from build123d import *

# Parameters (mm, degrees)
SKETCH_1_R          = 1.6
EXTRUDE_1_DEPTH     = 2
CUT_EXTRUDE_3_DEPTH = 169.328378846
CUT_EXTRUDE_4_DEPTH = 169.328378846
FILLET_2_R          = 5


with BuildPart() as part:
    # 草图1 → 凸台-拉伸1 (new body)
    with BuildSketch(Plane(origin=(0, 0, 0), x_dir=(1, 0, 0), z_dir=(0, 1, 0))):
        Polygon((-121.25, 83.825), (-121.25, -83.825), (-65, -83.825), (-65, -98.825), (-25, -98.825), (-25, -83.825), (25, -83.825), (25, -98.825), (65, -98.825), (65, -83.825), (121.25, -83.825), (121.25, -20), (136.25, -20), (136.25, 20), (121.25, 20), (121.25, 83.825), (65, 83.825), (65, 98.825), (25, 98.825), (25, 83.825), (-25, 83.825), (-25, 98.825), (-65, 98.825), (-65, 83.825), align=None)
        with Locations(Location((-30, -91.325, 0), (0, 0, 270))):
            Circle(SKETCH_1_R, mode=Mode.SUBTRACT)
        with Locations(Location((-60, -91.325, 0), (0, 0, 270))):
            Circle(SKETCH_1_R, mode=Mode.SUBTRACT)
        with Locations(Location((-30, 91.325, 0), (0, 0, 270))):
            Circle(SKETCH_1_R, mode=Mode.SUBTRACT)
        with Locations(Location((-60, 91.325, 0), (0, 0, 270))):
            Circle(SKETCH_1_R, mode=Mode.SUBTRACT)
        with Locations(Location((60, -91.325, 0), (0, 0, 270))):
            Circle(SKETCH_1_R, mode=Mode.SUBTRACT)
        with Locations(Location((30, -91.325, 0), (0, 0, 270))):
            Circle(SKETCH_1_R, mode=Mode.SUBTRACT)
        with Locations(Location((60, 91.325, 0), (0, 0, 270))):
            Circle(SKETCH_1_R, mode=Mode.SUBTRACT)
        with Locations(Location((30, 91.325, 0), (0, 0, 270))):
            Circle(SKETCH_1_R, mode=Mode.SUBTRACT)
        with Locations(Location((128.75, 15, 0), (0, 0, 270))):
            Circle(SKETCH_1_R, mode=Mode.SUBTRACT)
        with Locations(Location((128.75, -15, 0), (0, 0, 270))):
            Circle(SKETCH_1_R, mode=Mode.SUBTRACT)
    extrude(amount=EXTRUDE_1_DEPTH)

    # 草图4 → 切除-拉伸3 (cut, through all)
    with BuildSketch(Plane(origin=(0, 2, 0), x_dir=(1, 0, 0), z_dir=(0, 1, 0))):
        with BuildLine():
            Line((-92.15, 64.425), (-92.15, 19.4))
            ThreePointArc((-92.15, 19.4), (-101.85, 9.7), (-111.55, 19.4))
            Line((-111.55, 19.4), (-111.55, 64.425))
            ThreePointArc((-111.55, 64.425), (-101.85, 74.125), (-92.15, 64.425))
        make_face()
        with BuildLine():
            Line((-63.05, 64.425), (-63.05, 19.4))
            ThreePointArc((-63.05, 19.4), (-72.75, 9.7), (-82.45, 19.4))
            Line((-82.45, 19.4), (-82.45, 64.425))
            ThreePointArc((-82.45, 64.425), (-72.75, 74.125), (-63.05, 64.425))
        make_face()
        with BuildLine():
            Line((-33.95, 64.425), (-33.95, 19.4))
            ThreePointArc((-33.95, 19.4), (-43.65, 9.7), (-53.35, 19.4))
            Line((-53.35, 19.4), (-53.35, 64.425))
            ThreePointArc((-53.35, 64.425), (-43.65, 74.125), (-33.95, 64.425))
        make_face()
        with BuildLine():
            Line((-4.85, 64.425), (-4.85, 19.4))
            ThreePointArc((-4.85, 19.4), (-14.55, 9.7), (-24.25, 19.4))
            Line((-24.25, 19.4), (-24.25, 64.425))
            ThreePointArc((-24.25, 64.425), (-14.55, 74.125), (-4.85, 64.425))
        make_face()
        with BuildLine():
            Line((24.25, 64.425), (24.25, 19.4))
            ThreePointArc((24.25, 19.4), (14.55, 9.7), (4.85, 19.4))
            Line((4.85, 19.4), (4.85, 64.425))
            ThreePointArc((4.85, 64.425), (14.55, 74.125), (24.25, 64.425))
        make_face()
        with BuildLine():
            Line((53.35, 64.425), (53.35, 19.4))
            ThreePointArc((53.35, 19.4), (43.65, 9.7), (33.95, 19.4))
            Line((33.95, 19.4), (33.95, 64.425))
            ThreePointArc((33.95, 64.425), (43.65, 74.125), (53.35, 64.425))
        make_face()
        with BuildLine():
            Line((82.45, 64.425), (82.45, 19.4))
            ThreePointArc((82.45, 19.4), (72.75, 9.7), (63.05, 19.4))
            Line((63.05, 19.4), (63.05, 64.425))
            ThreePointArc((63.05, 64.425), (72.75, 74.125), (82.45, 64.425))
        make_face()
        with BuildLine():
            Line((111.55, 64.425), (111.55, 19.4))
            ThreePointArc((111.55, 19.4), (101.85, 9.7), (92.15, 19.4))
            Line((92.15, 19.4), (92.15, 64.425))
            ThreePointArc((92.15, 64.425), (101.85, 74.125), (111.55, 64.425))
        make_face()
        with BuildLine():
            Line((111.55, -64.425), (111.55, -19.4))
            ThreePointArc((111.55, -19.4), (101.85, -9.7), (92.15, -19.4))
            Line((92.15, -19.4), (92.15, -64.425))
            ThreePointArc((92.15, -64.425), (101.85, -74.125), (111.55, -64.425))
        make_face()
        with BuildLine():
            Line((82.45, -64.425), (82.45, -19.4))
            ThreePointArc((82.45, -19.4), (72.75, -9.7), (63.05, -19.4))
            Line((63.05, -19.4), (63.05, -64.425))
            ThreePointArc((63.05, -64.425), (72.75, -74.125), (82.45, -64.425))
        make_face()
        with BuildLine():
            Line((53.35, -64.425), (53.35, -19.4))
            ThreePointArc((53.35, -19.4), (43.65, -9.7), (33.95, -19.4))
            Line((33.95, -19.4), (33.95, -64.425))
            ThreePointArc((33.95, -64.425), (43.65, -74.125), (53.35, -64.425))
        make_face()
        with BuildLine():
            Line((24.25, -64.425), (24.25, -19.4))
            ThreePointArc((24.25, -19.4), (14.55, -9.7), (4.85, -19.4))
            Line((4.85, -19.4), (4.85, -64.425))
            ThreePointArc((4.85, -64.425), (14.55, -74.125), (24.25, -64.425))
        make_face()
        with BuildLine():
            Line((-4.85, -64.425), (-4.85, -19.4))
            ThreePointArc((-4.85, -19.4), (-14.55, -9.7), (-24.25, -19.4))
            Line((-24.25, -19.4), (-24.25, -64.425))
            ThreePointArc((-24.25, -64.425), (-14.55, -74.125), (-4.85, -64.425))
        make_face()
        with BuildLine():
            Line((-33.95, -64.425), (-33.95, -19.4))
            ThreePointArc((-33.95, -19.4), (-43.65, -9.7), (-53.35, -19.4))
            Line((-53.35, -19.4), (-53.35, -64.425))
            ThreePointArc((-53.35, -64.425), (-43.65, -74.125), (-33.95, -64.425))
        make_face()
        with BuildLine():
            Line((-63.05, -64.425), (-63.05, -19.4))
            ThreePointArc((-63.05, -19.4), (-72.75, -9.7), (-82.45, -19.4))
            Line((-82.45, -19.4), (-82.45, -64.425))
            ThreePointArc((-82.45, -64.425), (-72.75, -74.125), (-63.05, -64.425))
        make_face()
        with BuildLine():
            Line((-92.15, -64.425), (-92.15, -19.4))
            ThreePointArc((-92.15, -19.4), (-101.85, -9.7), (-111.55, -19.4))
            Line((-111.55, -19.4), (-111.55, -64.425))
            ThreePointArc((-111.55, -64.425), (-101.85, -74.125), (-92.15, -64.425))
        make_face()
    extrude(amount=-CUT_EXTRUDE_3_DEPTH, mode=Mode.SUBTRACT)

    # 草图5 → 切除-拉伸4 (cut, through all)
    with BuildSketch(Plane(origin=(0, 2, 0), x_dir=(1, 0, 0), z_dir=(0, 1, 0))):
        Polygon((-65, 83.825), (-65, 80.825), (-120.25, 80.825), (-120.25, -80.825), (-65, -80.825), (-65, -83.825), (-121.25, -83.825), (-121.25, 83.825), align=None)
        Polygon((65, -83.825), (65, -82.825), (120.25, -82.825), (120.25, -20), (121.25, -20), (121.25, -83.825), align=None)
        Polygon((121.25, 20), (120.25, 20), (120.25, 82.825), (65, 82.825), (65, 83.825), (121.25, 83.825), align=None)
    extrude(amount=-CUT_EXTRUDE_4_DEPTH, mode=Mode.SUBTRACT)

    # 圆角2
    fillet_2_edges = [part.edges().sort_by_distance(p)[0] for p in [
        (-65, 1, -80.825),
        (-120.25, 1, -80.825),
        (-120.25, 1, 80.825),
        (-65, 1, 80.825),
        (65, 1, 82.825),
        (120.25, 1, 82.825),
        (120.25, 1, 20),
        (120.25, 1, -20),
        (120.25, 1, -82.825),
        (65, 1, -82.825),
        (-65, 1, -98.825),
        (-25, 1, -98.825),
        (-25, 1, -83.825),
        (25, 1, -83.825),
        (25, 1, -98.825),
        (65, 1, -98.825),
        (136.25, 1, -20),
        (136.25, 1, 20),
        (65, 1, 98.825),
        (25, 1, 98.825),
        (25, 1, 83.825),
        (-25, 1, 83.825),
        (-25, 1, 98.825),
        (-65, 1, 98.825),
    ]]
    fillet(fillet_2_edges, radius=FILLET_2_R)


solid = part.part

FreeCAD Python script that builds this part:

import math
import FreeCAD as App
import Part
import Sketcher
from FreeCAD import Vector


def edges_at(feature, points):
    """Names of the edges that pass closest to the given points."""
    edges = feature.Shape.Edges
    near = lambda p: min(range(len(edges)), key=lambda i: edges[i].distToShape(Part.Vertex(*p))[0])
    return sorted({f"Edge{near(p) + 1}" for p in points})

doc = App.newDocument("Part")
body = doc.addObject("PartDesign::Body", "Body")

sketch1 = body.newObject("Sketcher::SketchObject", "Sketch")
sketch1.AttachmentSupport = (doc.getObject("XZ_Plane"), [""])
sketch1.MapMode = "FlatFace"
sketch1.addGeometry([
    Part.LineSegment(Vector(-121.2, -83.8, 0), Vector(-121.2, 83.8, 0)),
    Part.LineSegment(Vector(-121.2, 83.8, 0), Vector(-65, 83.8, 0)),
    Part.LineSegment(Vector(-65, 83.8, 0), Vector(-65, 98.8, 0)),
    Part.LineSegment(Vector(-65, 98.8, 0), Vector(-25, 98.8, 0)),
    Part.LineSegment(Vector(-25, 98.8, 0), Vector(-25, 83.8, 0)),
    Part.LineSegment(Vector(-25, 83.8, 0), Vector(25, 83.8, 0)),
    Part.LineSegment(Vector(25, 83.8, 0), Vector(25, 98.8, 0)),
    Part.LineSegment(Vector(25, 98.8, 0), Vector(65, 98.8, 0)),
    Part.LineSegment(Vector(65, 98.8, 0), Vector(65, 83.8, 0)),
    Part.LineSegment(Vector(65, 83.8, 0), Vector(121.2, 83.8, 0)),
    Part.LineSegment(Vector(121.2, 83.8, 0), Vector(121.2, 20, 0)),
    Part.LineSegment(Vector(121.2, 20, 0), Vector(136.2, 20, 0)),
    Part.LineSegment(Vector(136.2, 20, 0), Vector(136.2, -20, 0)),
    Part.LineSegment(Vector(136.2, -20, 0), Vector(121.2, -20, 0)),
    Part.LineSegment(Vector(121.2, -20, 0), Vector(121.2, -83.8, 0)),
    Part.LineSegment(Vector(121.2, -83.8, 0), Vector(65, -83.8, 0)),
    Part.LineSegment(Vector(65, -83.8, 0), Vector(65, -98.8, 0)),
    Part.LineSegment(Vector(65, -98.8, 0), Vector(25, -98.8, 0)),
    Part.LineSegment(Vector(25, -98.8, 0), Vector(25, -83.8, 0)),
    Part.LineSegment(Vector(25, -83.8, 0), Vector(-25, -83.8, 0)),
    Part.LineSegment(Vector(-25, -83.8, 0), Vector(-25, -98.8, 0)),
    Part.LineSegment(Vector(-25, -98.8, 0), Vector(-65, -98.8, 0)),
    Part.LineSegment(Vector(-65, -98.8, 0), Vector(-65, -83.8, 0)),
    Part.LineSegment(Vector(-65, -83.8, 0), Vector(-121.2, -83.8, 0)),
    Part.Circle(Vector(-60, 91.3, 0), Vector(0, 0, 1), 1.6),
    Part.Circle(Vector(-30, 91.3, 0), Vector(0, 0, 1), 1.6),
    Part.Circle(Vector(30, 91.3, 0), Vector(0, 0, 1), 1.6),
    Part.Circle(Vector(60, 91.3, 0), Vector(0, 0, 1), 1.6),
    Part.Circle(Vector(128.8, 15, 0), Vector(0, 0, 1), 1.6),
    Part.Circle(Vector(-60, -91.3, 0), Vector(0, 0, 1), 1.6),
    Part.Circle(Vector(-30, -91.3, 0), Vector(0, 0, 1), 1.6),
    Part.Circle(Vector(30, -91.3, 0), Vector(0, 0, 1), 1.6),
    Part.Circle(Vector(128.8, -15, 0), Vector(0, 0, 1), 1.6),
    Part.Circle(Vector(60, -91.3, 0), Vector(0, 0, 1), 1.6),
], False)
sketch1.addConstraint([
    Sketcher.Constraint("Coincident", 0, 2, 1, 1),
    Sketcher.Constraint("Coincident", 1, 2, 2, 1),
    Sketcher.Constraint("Coincident", 2, 2, 3, 1),
    Sketcher.Constraint("Coincident", 3, 2, 4, 1),
    Sketcher.Constraint("Coincident", 4, 2, 5, 1),
    Sketcher.Constraint("Coincident", 5, 2, 6, 1),
    Sketcher.Constraint("Coincident", 6, 2, 7, 1),
    Sketcher.Constraint("Coincident", 7, 2, 8, 1),
    Sketcher.Constraint("Coincident", 8, 2, 9, 1),
    Sketcher.Constraint("Coincident", 9, 2, 10, 1),
    Sketcher.Constraint("Coincident", 10, 2, 11, 1),
    Sketcher.Constraint("Coincident", 11, 2, 12, 1),
    Sketcher.Constraint("Coincident", 12, 2, 13, 1),
    Sketcher.Constraint("Coincident", 13, 2, 14, 1),
    Sketcher.Constraint("Coincident", 14, 2, 15, 1),
    Sketcher.Constraint("Coincident", 15, 2, 16, 1),
    Sketcher.Constraint("Coincident", 16, 2, 17, 1),
    Sketcher.Constraint("Coincident", 17, 2, 18, 1),
    Sketcher.Constraint("Coincident", 18, 2, 19, 1),
    Sketcher.Constraint("Coincident", 19, 2, 20, 1),
    Sketcher.Constraint("Coincident", 20, 2, 21, 1),
    Sketcher.Constraint("Coincident", 21, 2, 22, 1),
    Sketcher.Constraint("Coincident", 22, 2, 23, 1),
    Sketcher.Constraint("Coincident", 23, 2, 0, 1),
    Sketcher.Constraint("Vertical", 0),
    Sketcher.Constraint("Horizontal", 1),
    Sketcher.Constraint("Vertical", 2),
    Sketcher.Constraint("Horizontal", 3),
    Sketcher.Constraint("Vertical", 4),
    Sketcher.Constraint("Horizontal", 5),
    Sketcher.Constraint("Vertical", 6),
    Sketcher.Constraint("Horizontal", 7),
    Sketcher.Constraint("Vertical", 8),
    Sketcher.Constraint("Horizontal", 9),
    Sketcher.Constraint("Vertical", 10),
    Sketcher.Constraint("Horizontal", 11),
    Sketcher.Constraint("Vertical", 12),
    Sketcher.Constraint("Horizontal", 13),
    Sketcher.Constraint("Vertical", 14),
    Sketcher.Constraint("Horizontal", 15),
    Sketcher.Constraint("Vertical", 16),
    Sketcher.Constraint("Horizontal", 17),
    Sketcher.Constraint("Vertical", 18),
    Sketcher.Constraint("Horizontal", 19),
    Sketcher.Constraint("Vertical", 20),
    Sketcher.Constraint("Horizontal", 21),
    Sketcher.Constraint("Vertical", 22),
    Sketcher.Constraint("Horizontal", 23),
    Sketcher.Constraint("Equal", 24, 25),
    Sketcher.Constraint("Equal", 25, 26),
    Sketcher.Constraint("Equal", 26, 27),
    Sketcher.Constraint("Equal", 27, 28),
    Sketcher.Constraint("Equal", 28, 29),
    Sketcher.Constraint("Equal", 29, 30),
    Sketcher.Constraint("Equal", 30, 31),
    Sketcher.Constraint("Equal", 31, 32),
    Sketcher.Constraint("Equal", 32, 33),
    Sketcher.Constraint("Symmetric", 27, 3, 29, 3, -1, 1),
    Sketcher.Constraint("Symmetric", 26, 3, 30, 3, -1, 1),
    Sketcher.Constraint("Symmetric", 25, 3, 31, 3, -1, 1),
    Sketcher.Constraint("Symmetric", 24, 3, 33, 3, -1, 1),
    Sketcher.Constraint("Symmetric", 0, 2, 14, 2, -1, 1),
    Sketcher.Constraint("Symmetric", 2, 2, 16, 2, -1, 1),
    Sketcher.Constraint("Symmetric", 4, 2, 18, 2, -1, 1),
    Sketcher.Constraint("Symmetric", 6, 2, 20, 2, -1, 1),
    Sketcher.Constraint("Symmetric", 8, 2, 22, 2, -1, 1),
    Sketcher.Constraint("Symmetric", 25, 3, 26, 3, -2),
    Sketcher.Constraint("Symmetric", 24, 3, 27, 3, -2),
    Sketcher.Constraint("Symmetric", 3, 2, 6, 2, -2),
    Sketcher.Constraint("Symmetric", 1, 2, 8, 2, -2),
    Sketcher.Constraint("Symmetric", 28, 3, 32, 3, -1),
    Sketcher.Constraint("Symmetric", 10, 2, 13, 2, -1),
    Sketcher.Constraint("Horizontal", 24, 3, 25, 3),
    Sketcher.Constraint("Horizontal", 1, 2, 4, 2),
    Sketcher.Constraint("Equal", 13, 2),
    Sketcher.Constraint("Equal", 21, 12),
    Sketcher.Constraint("Diameter", 24, 3.2),
    Sketcher.Constraint("DistanceX", 3, 1, 3, 2, 40.0),
    Sketcher.Constraint("DistanceX", 5, 1, 5, 2, 50.0),
    Sketcher.Constraint("DistanceX", 11, 1, 11, 2, 15.0),
    Sketcher.Constraint("DistanceX", 24, 3, -1, 1, 60.0),
    Sketcher.Constraint("DistanceX", 25, 3, -1, 1, 30.0),
    Sketcher.Constraint("DistanceY", -1, 1, 28, 3, 15.0),
    Sketcher.Constraint("DistanceX", 1, 1, 1, 2, 56.25),
    Sketcher.Constraint("DistanceY", 0, 1, 0, 2, 167.65),
    Sketcher.Constraint("DistanceY", 0, 2, 24, 3, 7.5),
    Sketcher.Constraint("DistanceX", 9, 2, 28, 3, 7.5),
])
pad1 = body.newObject("PartDesign::Pad", "Pad")
pad1.Profile = sketch1
pad1.Length = 2
pad1.Reversed = True

sketch2 = body.newObject("Sketcher::SketchObject", "Sketch001")
sketch2.AttachmentSupport = (doc.getObject("XZ_Plane"), [""])
sketch2.MapMode = "FlatFace"
sketch2.AttachmentOffset = App.Placement(Vector(0, 0, -2), App.Rotation())
sketch2.addGeometry([
    Part.LineSegment(Vector(-92, -19, 0), Vector(-92, -64, 0)),
    Part.ArcOfCircle(Part.Circle(Vector(-102, -64, 0), Vector(0, 0, 1), 10), math.radians(180), math.radians(360)),
    Part.LineSegment(Vector(-112, -64, 0), Vector(-112, -19, 0)),
    Part.ArcOfCircle(Part.Circle(Vector(-102, -19, 0), Vector(0, 0, 1), 10), math.radians(0), math.radians(180)),
    Part.LineSegment(Vector(-63, -19, 0), Vector(-63, -64, 0)),
    Part.ArcOfCircle(Part.Circle(Vector(-73, -64, 0), Vector(0, 0, 1), 10), math.radians(180), math.radians(360)),
    Part.LineSegment(Vector(-82, -64, 0), Vector(-82, -19, 0)),
    Part.ArcOfCircle(Part.Circle(Vector(-73, -19, 0), Vector(0, 0, 1), 10), math.radians(0), math.radians(180)),
    Part.LineSegment(Vector(-34, -19, 0), Vector(-34, -64, 0)),
    Part.ArcOfCircle(Part.Circle(Vector(-44, -64, 0), Vector(0, 0, 1), 10), math.radians(180), math.radians(360)),
    Part.LineSegment(Vector(-53, -64, 0), Vector(-53, -19, 0)),
    Part.ArcOfCircle(Part.Circle(Vector(-44, -19, 0), Vector(0, 0, 1), 10), math.radians(0), math.radians(180)),
    Part.LineSegment(Vector(-5, -19, 0), Vector(-5, -64, 0)),
    Part.ArcOfCircle(Part.Circle(Vector(-15, -64, 0), Vector(0, 0, 1), 10), math.radians(180), math.radians(360)),
    Part.LineSegment(Vector(-24, -64, 0), Vector(-24, -19, 0)),
    Part.ArcOfCircle(Part.Circle(Vector(-15, -19, 0), Vector(0, 0, 1), 10), math.radians(0), math.radians(180)),
    Part.LineSegment(Vector(24, -19, 0), Vector(24, -64, 0)),
    Part.ArcOfCircle(Part.Circle(Vector(15, -64, 0), Vector(0, 0, 1), 10), math.radians(180), math.radians(360)),
    Part.LineSegment(Vector(5, -64, 0), Vector(5, -19, 0)),
    Part.ArcOfCircle(Part.Circle(Vector(15, -19, 0), Vector(0, 0, 1), 10), math.radians(0), math.radians(180)),
    Part.LineSegment(Vector(53, -19, 0), Vector(53, -64, 0)),
    Part.ArcOfCircle(Part.Circle(Vector(44, -64, 0), Vector(0, 0, 1), 10), math.radians(180), math.radians(360)),
    Part.LineSegment(Vector(34, -64, 0), Vector(34, -19, 0)),
    Part.ArcOfCircle(Part.Circle(Vector(44, -19, 0), Vector(0, 0, 1), 10), math.radians(0), math.radians(180)),
    Part.LineSegment(Vector(82, -19, 0), Vector(82, -64, 0)),
    Part.ArcOfCircle(Part.Circle(Vector(73, -64, 0), Vector(0, 0, 1), 10), math.radians(180), math.radians(360)),
    Part.LineSegment(Vector(63, -64, 0), Vector(63, -19, 0)),
    Part.ArcOfCircle(Part.Circle(Vector(73, -19, 0), Vector(0, 0, 1), 10), math.radians(0), math.radians(180)),
    Part.LineSegment(Vector(112, -19, 0), Vector(112, -64, 0)),
    Part.ArcOfCircle(Part.Circle(Vector(102, -64, 0), Vector(0, 0, 1), 10), math.radians(180), math.radians(360)),
    Part.LineSegment(Vector(92, -64, 0), Vector(92, -19, 0)),
    Part.ArcOfCircle(Part.Circle(Vector(102, -19, 0), Vector(0, 0, 1), 10), math.radians(0), math.radians(180)),
    Part.LineSegment(Vector(112, 64, 0), Vector(112, 19, 0)),
    Part.ArcOfCircle(Part.Circle(Vector(102, 19, 0), Vector(0, 0, 1), 10), math.radians(180), math.radians(360)),
    Part.LineSegment(Vector(92, 19, 0), Vector(92, 64, 0)),
    Part.ArcOfCircle(Part.Circle(Vector(102, 64, 0), Vector(0, 0, 1), 10), math.radians(0), math.radians(180)),
    Part.LineSegment(Vector(82, 64, 0), Vector(82, 19, 0)),
    Part.ArcOfCircle(Part.Circle(Vector(73, 19, 0), Vector(0, 0, 1), 10), math.radians(180), math.radians(360)),
    Part.LineSegment(Vector(63, 19, 0), Vector(63, 64, 0)),
    Part.ArcOfCircle(Part.Circle(Vector(73, 64, 0), Vector(0, 0, 1), 10), math.radians(0), math.radians(180)),
    Part.LineSegment(Vector(53, 64, 0), Vector(53, 19, 0)),
    Part.ArcOfCircle(Part.Circle(Vector(44, 19, 0), Vector(0, 0, 1), 10), math.radians(180), math.radians(360)),
    Part.LineSegment(Vector(34, 19, 0), Vector(34, 64, 0)),
    Part.ArcOfCircle(Part.Circle(Vector(44, 64, 0), Vector(0, 0, 1), 10), math.radians(0), math.radians(180)),
    Part.LineSegment(Vector(24, 64, 0), Vector(24, 19, 0)),
    Part.ArcOfCircle(Part.Circle(Vector(15, 19, 0), Vector(0, 0, 1), 10), math.radians(180), math.radians(360)),
    Part.LineSegment(Vector(5, 19, 0), Vector(5, 64, 0)),
    Part.ArcOfCircle(Part.Circle(Vector(15, 64, 0), Vector(0, 0, 1), 10), math.radians(0), math.radians(180)),
    Part.LineSegment(Vector(-5, 64, 0), Vector(-5, 19, 0)),
    Part.ArcOfCircle(Part.Circle(Vector(-15, 19, 0), Vector(0, 0, 1), 10), math.radians(180), math.radians(360)),
    Part.LineSegment(Vector(-24, 19, 0), Vector(-24, 64, 0)),
    Part.ArcOfCircle(Part.Circle(Vector(-15, 64, 0), Vector(0, 0, 1), 10), math.radians(0), math.radians(180)),
    Part.LineSegment(Vector(-34, 64, 0), Vector(-34, 19, 0)),
    Part.ArcOfCircle(Part.Circle(Vector(-44, 19, 0), Vector(0, 0, 1), 10), math.radians(180), math.radians(360)),
    Part.LineSegment(Vector(-53, 19, 0), Vector(-53, 64, 0)),
    Part.ArcOfCircle(Part.Circle(Vector(-44, 64, 0), Vector(0, 0, 1), 10), math.radians(0), math.radians(180)),
    Part.LineSegment(Vector(-63, 64, 0), Vector(-63, 19, 0)),
    Part.ArcOfCircle(Part.Circle(Vector(-73, 19, 0), Vector(0, 0, 1), 10), math.radians(180), math.radians(360)),
    Part.LineSegment(Vector(-82, 19, 0), Vector(-82, 64, 0)),
    Part.ArcOfCircle(Part.Circle(Vector(-73, 64, 0), Vector(0, 0, 1), 10), math.radians(0), math.radians(180)),
    Part.LineSegment(Vector(-92, 64, 0), Vector(-92, 19, 0)),
    Part.ArcOfCircle(Part.Circle(Vector(-102, 19, 0), Vector(0, 0, 1), 10), math.radians(180), math.radians(360)),
    Part.LineSegment(Vector(-112, 19, 0), Vector(-112, 64, 0)),
    Part.ArcOfCircle(Part.Circle(Vector(-102, 64, 0), Vector(0, 0, 1), 10), math.radians(0), math.radians(180)),
], False)
sketch2.addConstraint([
    Sketcher.Constraint("Tangent", 0, 2, 1, 2),
    Sketcher.Constraint("Tangent", 1, 1, 2, 1),
    Sketcher.Constraint("Tangent", 2, 2, 3, 2),
    Sketcher.Constraint("Tangent", 3, 1, 0, 1),
    Sketcher.Constraint("Tangent", 4, 2, 5, 2),
    Sketcher.Constraint("Tangent", 5, 1, 6, 1),
    Sketcher.Constraint("Tangent", 6, 2, 7, 2),
    Sketcher.Constraint("Tangent", 7, 1, 4, 1),
    Sketcher.Constraint("Tangent", 8, 2, 9, 2),
    Sketcher.Constraint("Tangent", 9, 1, 10, 1),
    Sketcher.Constraint("Tangent", 10, 2, 11, 2),
    Sketcher.Constraint("Tangent", 11, 1, 8, 1),
    Sketcher.Constraint("Tangent", 12, 2, 13, 2),
    Sketcher.Constraint("Tangent", 13, 1, 14, 1),
    Sketcher.Constraint("Tangent", 14, 2, 15, 2),
    Sketcher.Constraint("Tangent", 15, 1, 12, 1),
    Sketcher.Constraint("Tangent", 16, 2, 17, 2),
    Sketcher.Constraint("Tangent", 17, 1, 18, 1),
    Sketcher.Constraint("Tangent", 18, 2, 19, 2),
    Sketcher.Constraint("Tangent", 19, 1, 16, 1),
    Sketcher.Constraint("Tangent", 20, 2, 21, 2),
    Sketcher.Constraint("Tangent", 21, 1, 22, 1),
    Sketcher.Constraint("Tangent", 22, 2, 23, 2),
    Sketcher.Constraint("Tangent", 23, 1, 20, 1),
    Sketcher.Constraint("Tangent", 24, 2, 25, 2),
    Sketcher.Constraint("Tangent", 25, 1, 26, 1),
    Sketcher.Constraint("Tangent", 26, 2, 27, 2),
    Sketcher.Constraint("Tangent", 27, 1, 24, 1),
    Sketcher.Constraint("Tangent", 28, 2, 29, 2),
    Sketcher.Constraint("Tangent", 29, 1, 30, 1),
    Sketcher.Constraint("Tangent", 30, 2, 31, 2),
    Sketcher.Constraint("Tangent", 31, 1, 28, 1),
    Sketcher.Constraint("Tangent", 32, 2, 33, 2),
    Sketcher.Constraint("Tangent", 33, 1, 34, 1),
    Sketcher.Constraint("Tangent", 34, 2, 35, 2),
    Sketcher.Constraint("Tangent", 35, 1, 32, 1),
    Sketcher.Constraint("Tangent", 36, 2, 37, 2),
    Sketcher.Constraint("Tangent", 37, 1, 38, 1),
    Sketcher.Constraint("Tangent", 38, 2, 39, 2),
    Sketcher.Constraint("Tangent", 39, 1, 36, 1),
    Sketcher.Constraint("Tangent", 40, 2, 41, 2),
    Sketcher.Constraint("Tangent", 41, 1, 42, 1),
    Sketcher.Constraint("Tangent", 42, 2, 43, 2),
    Sketcher.Constraint("Tangent", 43, 1, 40, 1),
    Sketcher.Constraint("Tangent", 44, 2, 45, 2),
    Sketcher.Constraint("Tangent", 45, 1, 46, 1),
    Sketcher.Constraint("Tangent", 46, 2, 47, 2),
    Sketcher.Constraint("Tangent", 47, 1, 44, 1),
    Sketcher.Constraint("Tangent", 48, 2, 49, 2),
    Sketcher.Constraint("Tangent", 49, 1, 50, 1),
    Sketcher.Constraint("Tangent", 50, 2, 51, 2),
    Sketcher.Constraint("Tangent", 51, 1, 48, 1),
    Sketcher.Constraint("Tangent", 52, 2, 53, 2),
    Sketcher.Constraint("Tangent", 53, 1, 54, 1),
    Sketcher.Constraint("Tangent", 54, 2, 55, 2),
    Sketcher.Constraint("Tangent", 55, 1, 52, 1),
    Sketcher.Constraint("Tangent", 56, 2, 57, 2),
    Sketcher.Constraint("Tangent", 57, 1, 58, 1),
    Sketcher.Constraint("Tangent", 58, 2, 59, 2),
    Sketcher.Constraint("Tangent", 59, 1, 56, 1),
    Sketcher.Constraint("Tangent", 60, 2, 61, 2),
    Sketcher.Constraint("Tangent", 61, 1, 62, 1),
    Sketcher.Constraint("Tangent", 62, 2, 63, 2),
    Sketcher.Constraint("Tangent", 63, 1, 60, 1),
    Sketcher.Constraint("Vertical", 0),
    Sketcher.Constraint("Vertical", 2),
    Sketcher.Constraint("Vertical", 4),
    Sketcher.Constraint("Vertical", 6),
    Sketcher.Constraint("Vertical", 8),
    Sketcher.Constraint("Vertical", 10),
    Sketcher.Constraint("Vertical", 12),
    Sketcher.Constraint("Vertical", 14),
    Sketcher.Constraint("Vertical", 16),
    Sketcher.Constraint("Vertical", 18),
    Sketcher.Constraint("Vertical", 20),
    Sketcher.Constraint("Vertical", 22),
    Sketcher.Constraint("Vertical", 24),
    Sketcher.Constraint("Vertical", 26),
    Sketcher.Constraint("Vertical", 28),
    Sketcher.Constraint("Vertical", 30),
    Sketcher.Constraint("Vertical", 32),
    Sketcher.Constraint("Vertical", 34),
    Sketcher.Constraint("Vertical", 36),
    Sketcher.Constraint("Vertical", 38),
    Sketcher.Constraint("Vertical", 40),
    Sketcher.Constraint("Vertical", 42),
    Sketcher.Constraint("Vertical", 44),
    Sketcher.Constraint("Vertical", 46),
    Sketcher.Constraint("Vertical", 48),
    Sketcher.Constraint("Vertical", 50),
    Sketcher.Constraint("Vertical", 52),
    Sketcher.Constraint("Vertical", 54),
    Sketcher.Constraint("Vertical", 56),
    Sketcher.Constraint("Vertical", 58),
    Sketcher.Constraint("Vertical", 60),
    Sketcher.Constraint("Vertical", 62),
    Sketcher.Constraint("Equal", 3, 5),
    Sketcher.Constraint("Equal", 7, 9),
    Sketcher.Constraint("Equal", 11, 13),
    Sketcher.Constraint("Equal", 15, 17),
    Sketcher.Constraint("Equal", 19, 21),
    Sketcher.Constraint("Equal", 23, 25),
    Sketcher.Constraint("Equal", 27, 29),
    Sketcher.Constraint("Equal", 31, 33),
    Sketcher.Constraint("Equal", 35, 37),
    Sketcher.Constraint("Equal", 39, 41),
    Sketcher.Constraint("Equal", 43, 45),
    Sketcher.Constraint("Equal", 47, 49),
    Sketcher.Constraint("Equal", 51, 53),
    Sketcher.Constraint("Equal", 55, 57),
    Sketcher.Constraint("Equal", 59, 61),
    Sketcher.Constraint("Symmetric", 3, 3, 33, 3, -1, 1),
    Sketcher.Constraint("Symmetric", 7, 3, 37, 3, -1, 1),
    Sketcher.Constraint("Symmetric", 11, 3, 41, 3, -1, 1),
    Sketcher.Constraint("Symmetric", 15, 3, 45, 3, -1, 1),
    Sketcher.Constraint("Symmetric", 19, 3, 49, 3, -1, 1),
    Sketcher.Constraint("Symmetric", 23, 3, 53, 3, -1, 1),
    Sketcher.Constraint("Symmetric", 27, 3, 57, 3, -1, 1),
    Sketcher.Constraint("Symmetric", 31, 3, 61, 3, -1, 1),
    Sketcher.Constraint("Symmetric", 13, 3, 17, 3, -2),
    Sketcher.Constraint("Symmetric", 9, 3, 21, 3, -2),
    Sketcher.Constraint("Symmetric", 5, 3, 25, 3, -2),
    Sketcher.Constraint("Symmetric", 1, 3, 29, 3, -2),
    Sketcher.Constraint("Horizontal", 1, 3, 5, 3),
    Sketcher.Constraint("Horizontal", 3, 3, 7, 3),
    Sketcher.Constraint("Horizontal", 5, 3, 9, 3),
    Sketcher.Constraint("Horizontal", 7, 3, 11, 3),
    Sketcher.Constraint("Horizontal", 9, 3, 13, 3),
    Sketcher.Constraint("Horizontal", 11, 3, 15, 3),
    Sketcher.Constraint("Horizontal", 15, 3, 19, 3),
    Sketcher.Constraint("Horizontal", 19, 3, 23, 3),
    Sketcher.Constraint("Horizontal", 23, 3, 27, 3),
    Sketcher.Constraint("Horizontal", 27, 3, 31, 3),
    Sketcher.Constraint("Horizontal", 35, 3, 39, 3),
    Sketcher.Constraint("Horizontal", 39, 3, 43, 3),
    Sketcher.Constraint("Horizontal", 43, 3, 47, 3),
    Sketcher.Constraint("Horizontal", 47, 3, 51, 3),
    Sketcher.Constraint("Horizontal", 51, 3, 55, 3),
    Sketcher.Constraint("Horizontal", 55, 3, 59, 3),
    Sketcher.Constraint("Horizontal", 59, 3, 63, 3),
    Sketcher.Constraint("Equal", 30, 32),
    Sketcher.Constraint("Radius", 1, 9.7),
    Sketcher.Constraint("DistanceY", 3, 3, -1, 1, 19.4),
    Sketcher.Constraint("DistanceY", 0, 2, 0, 1, 45.025),
    Sketcher.Constraint("DistanceX", 1, 3, -1, 1, 101.85),
    Sketcher.Constraint("DistanceX", 5, 3, -1, 1, 72.75),
    Sketcher.Constraint("DistanceX", 9, 3, -1, 1, 43.65),
    Sketcher.Constraint("DistanceX", 13, 3, -1, 1, 14.55),
])
pocket1 = body.newObject("PartDesign::Pocket", "Pocket")
pocket1.Profile = sketch2
pocket1.Type = "ThroughAll"
pocket1.Reversed = True

sketch3 = body.newObject("Sketcher::SketchObject", "Sketch002")
sketch3.AttachmentSupport = (doc.getObject("XZ_Plane"), [""])
sketch3.MapMode = "FlatFace"
sketch3.AttachmentOffset = App.Placement(Vector(0, 0, -2), App.Rotation())
sketch3.addGeometry([
    Part.LineSegment(Vector(-65, -80.8, 0), Vector(-65, -83.8, 0)),
    Part.LineSegment(Vector(-65, -83.8, 0), Vector(-121.2, -83.8, 0)),
    Part.LineSegment(Vector(-121.2, -83.8, 0), Vector(-121.2, 83.8, 0)),
    Part.LineSegment(Vector(-121.2, 83.8, 0), Vector(-65, 83.8, 0)),
    Part.LineSegment(Vector(-65, 83.8, 0), Vector(-65, 80.8, 0)),
    Part.LineSegment(Vector(-65, 80.8, 0), Vector(-120.2, 80.8, 0)),
    Part.LineSegment(Vector(-120.2, 80.8, 0), Vector(-120.2, -80.8, 0)),
    Part.LineSegment(Vector(-120.2, -80.8, 0), Vector(-65, -80.8, 0)),
    Part.LineSegment(Vector(65, 82.8, 0), Vector(65, 83.8, 0)),
    Part.LineSegment(Vector(65, 83.8, 0), Vector(121.2, 83.8, 0)),
    Part.LineSegment(Vector(121.2, 83.8, 0), Vector(121.2, 20, 0)),
    Part.LineSegment(Vector(121.2, 20, 0), Vector(120.2, 20, 0)),
    Part.LineSegment(Vector(120.2, 20, 0), Vector(120.2, 82.8, 0)),
    Part.LineSegment(Vector(120.2, 82.8, 0), Vector(65, 82.8, 0)),
    Part.LineSegment(Vector(120.2, -20, 0), Vector(121.2, -20, 0)),
    Part.LineSegment(Vector(121.2, -20, 0), Vector(121.2, -83.8, 0)),
    Part.LineSegment(Vector(121.2, -83.8, 0), Vector(65, -83.8, 0)),
    Part.LineSegment(Vector(65, -83.8, 0), Vector(65, -82.8, 0)),
    Part.LineSegment(Vector(65, -82.8, 0), Vector(120.2, -82.8, 0)),
    Part.LineSegment(Vector(120.2, -82.8, 0), Vector(120.2, -20, 0)),
], False)
sketch3.addConstraint([
    Sketcher.Constraint("Coincident", 0, 2, 1, 1),
    Sketcher.Constraint("Coincident", 1, 2, 2, 1),
    Sketcher.Constraint("Coincident", 2, 2, 3, 1),
    Sketcher.Constraint("Coincident", 3, 2, 4, 1),
    Sketcher.Constraint("Coincident", 4, 2, 5, 1),
    Sketcher.Constraint("Coincident", 5, 2, 6, 1),
    Sketcher.Constraint("Coincident", 6, 2, 7, 1),
    Sketcher.Constraint("Coincident", 7, 2, 0, 1),
    Sketcher.Constraint("Coincident", 8, 2, 9, 1),
    Sketcher.Constraint("Coincident", 9, 2, 10, 1),
    Sketcher.Constraint("Coincident", 10, 2, 11, 1),
    Sketcher.Constraint("Coincident", 11, 2, 12, 1),
    Sketcher.Constraint("Coincident", 12, 2, 13, 1),
    Sketcher.Constraint("Coincident", 13, 2, 8, 1),
    Sketcher.Constraint("Coincident", 14, 2, 15, 1),
    Sketcher.Constraint("Coincident", 15, 2, 16, 1),
    Sketcher.Constraint("Coincident", 16, 2, 17, 1),
    Sketcher.Constraint("Coincident", 17, 2, 18, 1),
    Sketcher.Constraint("Coincident", 18, 2, 19, 1),
    Sketcher.Constraint("Coincident", 19, 2, 14, 1),
    Sketcher.Constraint("Vertical", 0),
    Sketcher.Constraint("Horizontal", 1),
    Sketcher.Constraint("Vertical", 2),
    Sketcher.Constraint("Horizontal", 3),
    Sketcher.Constraint("Vertical", 4),
    Sketcher.Constraint("Horizontal", 5),
    Sketcher.Constraint("Vertical", 6),
    Sketcher.Constraint("Horizontal", 7),
    Sketcher.Constraint("Vertical", 8),
    Sketcher.Constraint("Horizontal", 9),
    Sketcher.Constraint("Vertical", 10),
    Sketcher.Constraint("Horizontal", 11),
    Sketcher.Constraint("Vertical", 12),
    Sketcher.Constraint("Horizontal", 13),
    Sketcher.Constraint("Horizontal", 14),
    Sketcher.Constraint("Vertical", 15),
    Sketcher.Constraint("Horizontal", 16),
    Sketcher.Constraint("Vertical", 17),
    Sketcher.Constraint("Horizontal", 18),
    Sketcher.Constraint("Vertical", 19),
    Sketcher.Constraint("Symmetric", 0, 2, 8, 2, -1, 1),
    Sketcher.Constraint("Symmetric", 2, 2, 15, 2, -1, 1),
    Sketcher.Constraint("Symmetric", 3, 2, 8, 2, -2),
    Sketcher.Constraint("Symmetric", 10, 2, 14, 2, -1),
    Sketcher.Constraint("Symmetric", 13, 2, 17, 2, -1),
    Sketcher.Constraint("Vertical", 12, 2, 18, 2),
    Sketcher.Constraint("Equal", 7, 13),
    Sketcher.Constraint("Equal", 0, 4),
    Sketcher.Constraint("Equal", 14, 8),
    Sketcher.Constraint("DistanceX", 11, 2, 11, 1, 1.0),
    Sketcher.Constraint("DistanceY", 0, 2, 0, 1, 3.0),
    Sketcher.Constraint("DistanceX", 0, 2, -1, 1, 65.0),
    Sketcher.Constraint("DistanceY", -1, 1, 10, 2, 20.0),
    Sketcher.Constraint("DistanceX", 1, 2, 1, 1, 56.25),
    Sketcher.Constraint("DistanceY", 2, 1, 2, 2, 167.65),
])
pocket2 = body.newObject("PartDesign::Pocket", "Pocket001")
pocket2.Profile = sketch3
pocket2.Type = "ThroughAll"
pocket2.Reversed = True
doc.recompute()

fillet = body.newObject("PartDesign::Fillet", "Fillet")
fillet.Base = (pocket2, edges_at(pocket2, [
    (-65, 1, -80.825),
    (-120.25, 1, -80.825),
    (-120.25, 1, 80.825),
    (-65, 1, 80.825),
    (65, 1, 82.825),
    (120.25, 1, 82.825),
    (120.25, 1, 20),
    (120.25, 1, -20),
    (120.25, 1, -82.825),
    (65, 1, -82.825),
    (-65, 1, -98.825),
    (-25, 1, -98.825),
    (-25, 1, -83.825),
    (25, 1, -83.825),
    (25, 1, -98.825),
    (65, 1, -98.825),
    (136.25, 1, -20),
    (136.25, 1, 20),
    (65, 1, 98.825),
    (25, 1, 98.825),
    (25, 1, 83.825),
    (-25, 1, 83.825),
    (-25, 1, 98.825),
    (-65, 1, 98.825),
]))
fillet.Radius = 5

doc.recompute()
